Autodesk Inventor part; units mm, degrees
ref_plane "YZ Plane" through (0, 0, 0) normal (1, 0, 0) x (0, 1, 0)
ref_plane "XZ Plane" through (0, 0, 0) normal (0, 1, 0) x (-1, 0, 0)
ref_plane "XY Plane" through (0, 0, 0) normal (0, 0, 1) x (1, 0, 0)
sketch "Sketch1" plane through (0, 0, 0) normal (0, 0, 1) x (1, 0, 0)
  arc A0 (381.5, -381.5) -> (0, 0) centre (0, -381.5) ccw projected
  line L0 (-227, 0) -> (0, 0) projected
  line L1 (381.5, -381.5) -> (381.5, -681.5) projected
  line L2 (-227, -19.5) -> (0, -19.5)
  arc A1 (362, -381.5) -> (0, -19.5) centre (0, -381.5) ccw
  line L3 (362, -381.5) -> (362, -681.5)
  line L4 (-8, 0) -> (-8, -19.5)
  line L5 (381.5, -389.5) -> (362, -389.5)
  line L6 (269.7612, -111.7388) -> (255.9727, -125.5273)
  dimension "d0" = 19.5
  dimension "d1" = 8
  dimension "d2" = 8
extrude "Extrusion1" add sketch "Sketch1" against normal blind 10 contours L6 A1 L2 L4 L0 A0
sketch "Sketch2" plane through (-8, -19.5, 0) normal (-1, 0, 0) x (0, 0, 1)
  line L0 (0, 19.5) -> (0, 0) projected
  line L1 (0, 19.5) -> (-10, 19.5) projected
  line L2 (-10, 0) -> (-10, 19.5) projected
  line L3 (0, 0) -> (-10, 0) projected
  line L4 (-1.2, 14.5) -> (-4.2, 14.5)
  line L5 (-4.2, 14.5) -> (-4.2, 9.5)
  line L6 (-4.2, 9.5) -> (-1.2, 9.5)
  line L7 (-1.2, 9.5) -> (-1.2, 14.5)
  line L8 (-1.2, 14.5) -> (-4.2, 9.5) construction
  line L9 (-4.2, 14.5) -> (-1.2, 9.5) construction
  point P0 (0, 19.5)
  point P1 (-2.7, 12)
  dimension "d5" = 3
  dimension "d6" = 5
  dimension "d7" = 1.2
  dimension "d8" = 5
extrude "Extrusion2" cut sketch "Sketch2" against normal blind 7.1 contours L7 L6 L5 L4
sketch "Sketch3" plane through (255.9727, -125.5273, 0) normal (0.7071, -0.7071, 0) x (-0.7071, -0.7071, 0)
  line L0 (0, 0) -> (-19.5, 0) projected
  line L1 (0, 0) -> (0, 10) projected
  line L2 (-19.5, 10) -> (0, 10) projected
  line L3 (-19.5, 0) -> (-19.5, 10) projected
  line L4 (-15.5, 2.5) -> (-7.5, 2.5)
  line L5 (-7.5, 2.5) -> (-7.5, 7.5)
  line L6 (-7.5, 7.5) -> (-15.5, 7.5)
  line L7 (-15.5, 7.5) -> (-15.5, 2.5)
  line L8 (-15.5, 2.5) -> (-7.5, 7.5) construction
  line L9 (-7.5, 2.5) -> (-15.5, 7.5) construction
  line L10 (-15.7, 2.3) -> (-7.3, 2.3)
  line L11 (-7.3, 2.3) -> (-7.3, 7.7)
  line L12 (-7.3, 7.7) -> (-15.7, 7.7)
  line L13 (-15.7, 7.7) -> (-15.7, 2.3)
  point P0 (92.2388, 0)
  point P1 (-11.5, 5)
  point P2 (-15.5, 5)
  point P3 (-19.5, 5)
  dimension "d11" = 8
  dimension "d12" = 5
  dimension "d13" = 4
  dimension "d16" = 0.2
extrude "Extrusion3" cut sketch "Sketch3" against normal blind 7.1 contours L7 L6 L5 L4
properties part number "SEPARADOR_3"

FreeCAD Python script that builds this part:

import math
import FreeCAD as App
import Part
import Sketcher
from FreeCAD import Vector
Q = App.Units.Quantity

doc = App.newDocument("Part")
body = doc.addObject("PartDesign::Body", "Body")

# Sketch on XY plane
sketch1 = body.newObject("Sketcher::SketchObject", "Sketch")
sketch1.AttachmentSupport = (doc.getObject("XY_Plane"), [""])
sketch1.MapMode = "FlatFace"
sketch1.addGeometry(Part.LineSegment(Vector(256, -126, 0), Vector(270, -112, 0)), False)
sketch1.addGeometry(Part.ArcOfCircle(Part.Circle(Vector(0, -382, 0), Vector(0, 0, 1), 382), math.radians(45), math.radians(90)), False)
sketch1.addGeometry(Part.LineSegment(Vector(0, 0, 0), Vector(-8, 0, 0)), False)
sketch1.addGeometry(Part.LineSegment(Vector(-8, 0, 0), Vector(-8, -20, 0)), False)
sketch1.addGeometry(Part.LineSegment(Vector(-8, -20, 0), Vector(0, -20, 0)), False)
sketch1.addGeometry(Part.ArcOfCircle(Part.Circle(Vector(0, -382, 0), Vector(0, 0, 1), 362), math.radians(45), math.radians(90)), False)
sketch1.addConstraint(Sketcher.Constraint("Coincident", 0, 2, 1, 1))
sketch1.addConstraint(Sketcher.Constraint("Tangent", 1, 2, 2, 1))
sketch1.addConstraint(Sketcher.Constraint("Coincident", 2, 2, 3, 1))
sketch1.addConstraint(Sketcher.Constraint("Coincident", 3, 2, 4, 1))
sketch1.addConstraint(Sketcher.Constraint("Tangent", 4, 2, 5, 2))
sketch1.addConstraint(Sketcher.Constraint("Coincident", 5, 1, 0, 1))
sketch1.addConstraint(Sketcher.Constraint("Horizontal", 2))
sketch1.addConstraint(Sketcher.Constraint("Vertical", 3))
sketch1.addConstraint(Sketcher.Constraint("Horizontal", 4))
sketch1.addConstraint(Sketcher.Constraint("Coincident", 5, 3, 1, 3))
sketch1.addConstraint(Sketcher.Constraint("PointOnObject", 1, 3, -2))
sketch1.addConstraint(Sketcher.Constraint("PointOnObject", 2, 2, -1))
sketch1.addConstraint(Sketcher.Constraint("DistanceX", 2, 2, 2, 1, Q("8 mm")))
sketch1.addConstraint(Sketcher.Constraint("DistanceY", 3, 2, 3, 1, Q("19.5 mm")))
sketch1.addConstraint(Sketcher.Constraint("Radius", 5, Q("362 mm")))
sketch1.addConstraint(Sketcher.Constraint("Angle", 0, Q("45 deg")))
sketch1.addConstraint(Sketcher.Constraint("DistanceX", -1, 1, 0, 2, Q("269.7612 mm")))
pad1 = body.newObject("PartDesign::Pad", "Pad")
pad1.Profile = sketch1
pad1.Length = 10
pad1.Reversed = True

# Sketch on YZ plane
sketch2 = body.newObject("Sketcher::SketchObject", "Sketch001")
sketch2.AttachmentSupport = (doc.getObject("YZ_Plane"), [""])
sketch2.MapMode = "FlatFace"
sketch2.AttachmentOffset = App.Placement(Vector(0, 0, -8), App.Rotation())
sketch2.addGeometry(Part.LineSegment(Vector(-10, -1.2, 0), Vector(-5, -1.2, 0)), False)
sketch2.addGeometry(Part.LineSegment(Vector(-5, -1.2, 0), Vector(-5, -4.2, 0)), False)
sketch2.addGeometry(Part.LineSegment(Vector(-5, -4.2, 0), Vector(-10, -4.2, 0)), False)
sketch2.addGeometry(Part.LineSegment(Vector(-10, -4.2, 0), Vector(-10, -1.2, 0)), False)
sketch2.addConstraint(Sketcher.Constraint("Coincident", 0, 2, 1, 1))
sketch2.addConstraint(Sketcher.Constraint("Coincident", 1, 2, 2, 1))
sketch2.addConstraint(Sketcher.Constraint("Coincident", 2, 2, 3, 1))
sketch2.addConstraint(Sketcher.Constraint("Coincident", 3, 2, 0, 1))
sketch2.addConstraint(Sketcher.Constraint("Horizontal", 0))
sketch2.addConstraint(Sketcher.Constraint("Vertical", 1))
sketch2.addConstraint(Sketcher.Constraint("Horizontal", 2))
sketch2.addConstraint(Sketcher.Constraint("Vertical", 3))
sketch2.addConstraint(Sketcher.Constraint("DistanceX", 0, 1, 0, 2, Q("5 mm")))
sketch2.addConstraint(Sketcher.Constraint("DistanceY", 1, 2, 1, 1, Q("3 mm")))
sketch2.addConstraint(Sketcher.Constraint("DistanceX", 0, 2, -1, 1, Q("5 mm")))
sketch2.addConstraint(Sketcher.Constraint("DistanceY", 0, 2, -1, 1, Q("1.2 mm")))
pocket1 = body.newObject("PartDesign::Pocket", "Pocket")
pocket1.Profile = sketch2
pocket1.Length = 7.1
pocket1.Reversed = True

# Sketch on an angled plane
sketch3 = body.newObject("Sketcher::SketchObject", "Sketch002")
sketch3.Placement = App.Placement(Vector(255.9727, -125.5273, 0), App.Rotation(Vector(-0.707106781, -0.707106781, 0), Vector(0, 0, -0.999999999), Vector(0.707106781, -0.707106781, 0), "ZXY"))
sketch3.addGeometry(Part.LineSegment(Vector(-15.5, 7.5, 0), Vector(-15.5, 2.5, 0)), False)
sketch3.addGeometry(Part.LineSegment(Vector(-15.5, 2.5, 0), Vector(-7.5, 2.5, 0)), False)
sketch3.addGeometry(Part.LineSegment(Vector(-7.5, 2.5, 0), Vector(-7.5, 7.5, 0)), False)
sketch3.addGeometry(Part.LineSegment(Vector(-7.5, 7.5, 0), Vector(-15.5, 7.5, 0)), False)
sketch3.addConstraint(Sketcher.Constraint("Coincident", 0, 2, 1, 1))
sketch3.addConstraint(Sketcher.Constraint("Coincident", 1, 2, 2, 1))
sketch3.addConstraint(Sketcher.Constraint("Coincident", 2, 2, 3, 1))
sketch3.addConstraint(Sketcher.Constraint("Coincident", 3, 2, 0, 1))
sketch3.addConstraint(Sketcher.Constraint("Vertical", 0))
sketch3.addConstraint(Sketcher.Constraint("Horizontal", 1))
sketch3.addConstraint(Sketcher.Constraint("Vertical", 2))
sketch3.addConstraint(Sketcher.Constraint("Horizontal", 3))
sketch3.addConstraint(Sketcher.Constraint("DistanceX", 1, 1, 1, 2, Q("8 mm")))
sketch3.addConstraint(Sketcher.Constraint("DistanceY", 0, 2, 0, 1, Q("5 mm")))
sketch3.addConstraint(Sketcher.Constraint("DistanceX", 0, 2, -1, 1, Q("15.5 mm")))
sketch3.addConstraint(Sketcher.Constraint("DistanceY", -1, 1, 0, 2, Q("2.5 mm")))
pocket2 = body.newObject("PartDesign::Pocket", "Pocket001")
pocket2.Profile = sketch3
pocket2.Length = 7.1

doc.recompute()
